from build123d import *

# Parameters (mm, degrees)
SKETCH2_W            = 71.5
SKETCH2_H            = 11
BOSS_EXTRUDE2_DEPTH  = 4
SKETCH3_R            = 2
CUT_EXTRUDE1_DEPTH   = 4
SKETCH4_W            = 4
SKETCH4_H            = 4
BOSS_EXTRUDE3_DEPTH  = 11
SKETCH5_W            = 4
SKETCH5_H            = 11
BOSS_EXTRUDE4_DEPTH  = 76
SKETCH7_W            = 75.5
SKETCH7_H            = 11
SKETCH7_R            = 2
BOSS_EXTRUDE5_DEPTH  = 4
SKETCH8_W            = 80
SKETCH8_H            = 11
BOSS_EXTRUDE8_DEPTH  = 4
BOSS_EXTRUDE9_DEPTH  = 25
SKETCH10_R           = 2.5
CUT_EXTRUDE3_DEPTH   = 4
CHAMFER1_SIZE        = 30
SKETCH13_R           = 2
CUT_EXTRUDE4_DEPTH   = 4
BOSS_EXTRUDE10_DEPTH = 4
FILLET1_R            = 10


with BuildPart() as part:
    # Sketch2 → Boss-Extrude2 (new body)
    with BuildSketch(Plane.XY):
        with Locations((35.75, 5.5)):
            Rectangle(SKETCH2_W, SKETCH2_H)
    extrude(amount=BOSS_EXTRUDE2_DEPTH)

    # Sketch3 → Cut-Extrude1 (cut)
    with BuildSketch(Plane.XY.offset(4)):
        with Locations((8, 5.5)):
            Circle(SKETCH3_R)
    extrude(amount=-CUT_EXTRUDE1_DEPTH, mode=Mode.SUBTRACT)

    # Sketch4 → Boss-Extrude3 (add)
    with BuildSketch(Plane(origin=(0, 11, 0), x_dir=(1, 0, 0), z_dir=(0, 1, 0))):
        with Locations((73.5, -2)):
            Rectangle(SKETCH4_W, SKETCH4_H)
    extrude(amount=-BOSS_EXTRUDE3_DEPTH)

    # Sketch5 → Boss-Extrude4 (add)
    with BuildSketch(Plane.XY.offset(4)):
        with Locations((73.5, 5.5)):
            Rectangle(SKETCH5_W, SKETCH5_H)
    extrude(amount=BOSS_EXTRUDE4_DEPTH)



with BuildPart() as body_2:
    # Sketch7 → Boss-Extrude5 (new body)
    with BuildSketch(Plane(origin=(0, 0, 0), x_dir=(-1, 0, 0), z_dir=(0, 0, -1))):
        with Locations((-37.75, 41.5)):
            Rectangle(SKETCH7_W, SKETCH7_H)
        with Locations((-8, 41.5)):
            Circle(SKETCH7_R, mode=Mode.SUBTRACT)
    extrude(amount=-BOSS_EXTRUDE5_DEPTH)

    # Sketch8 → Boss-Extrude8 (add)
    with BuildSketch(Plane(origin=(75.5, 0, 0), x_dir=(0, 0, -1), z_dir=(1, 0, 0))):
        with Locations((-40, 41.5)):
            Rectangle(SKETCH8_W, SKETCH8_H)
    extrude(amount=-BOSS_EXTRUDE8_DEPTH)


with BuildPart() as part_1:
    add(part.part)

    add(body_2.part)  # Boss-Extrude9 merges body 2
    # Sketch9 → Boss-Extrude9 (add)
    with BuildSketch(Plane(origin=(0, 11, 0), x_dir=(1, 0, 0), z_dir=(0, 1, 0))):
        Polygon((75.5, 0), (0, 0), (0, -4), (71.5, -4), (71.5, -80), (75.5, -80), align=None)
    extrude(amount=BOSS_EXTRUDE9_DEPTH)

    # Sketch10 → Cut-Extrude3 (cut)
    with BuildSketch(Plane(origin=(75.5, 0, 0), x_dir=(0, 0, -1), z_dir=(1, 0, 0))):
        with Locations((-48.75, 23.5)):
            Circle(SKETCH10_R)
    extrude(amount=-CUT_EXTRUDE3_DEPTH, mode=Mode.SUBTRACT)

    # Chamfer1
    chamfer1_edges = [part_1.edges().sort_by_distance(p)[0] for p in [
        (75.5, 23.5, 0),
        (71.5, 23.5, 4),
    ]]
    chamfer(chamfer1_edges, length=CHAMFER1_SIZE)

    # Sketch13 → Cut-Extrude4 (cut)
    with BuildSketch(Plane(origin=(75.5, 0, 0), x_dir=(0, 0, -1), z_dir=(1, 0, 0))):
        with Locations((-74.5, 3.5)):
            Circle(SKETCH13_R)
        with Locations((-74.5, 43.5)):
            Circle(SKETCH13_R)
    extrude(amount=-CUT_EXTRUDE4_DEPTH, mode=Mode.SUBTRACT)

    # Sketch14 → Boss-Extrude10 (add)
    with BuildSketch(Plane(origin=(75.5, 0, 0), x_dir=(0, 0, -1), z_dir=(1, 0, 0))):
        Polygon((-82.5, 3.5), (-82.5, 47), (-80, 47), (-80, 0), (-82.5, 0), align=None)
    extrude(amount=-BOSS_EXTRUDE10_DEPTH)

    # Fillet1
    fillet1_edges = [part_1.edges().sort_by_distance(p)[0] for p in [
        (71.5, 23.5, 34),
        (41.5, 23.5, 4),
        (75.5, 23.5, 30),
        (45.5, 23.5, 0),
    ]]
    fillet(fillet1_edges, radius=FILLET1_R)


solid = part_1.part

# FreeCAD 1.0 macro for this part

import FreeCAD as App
import Part
import Sketcher
Q = App.Units.Quantity


def edges_at(feature, points):
    """Names of the edges that pass closest to the given points."""
    edges = feature.Shape.Edges
    near = lambda p: min(range(len(edges)), key=lambda i: edges[i].distToShape(Part.Vertex(*p))[0])
    return sorted({f"Edge{near(p) + 1}" for p in points})

doc = App.newDocument("Part")
body = doc.addObject("PartDesign::Body", "Body")

# Sketch on XY plane
sketch1 = body.newObject("Sketcher::SketchObject", "Sketch")
sketch1.AttachmentSupport = (doc.getObject("XY_Plane"), [""])
sketch1.MapMode = "FlatFace"
sketch1.addGeometry([
    Part.LineSegment(App.Vector(0, 11, 0), App.Vector(0, 0, 0)),
    Part.LineSegment(App.Vector(0, 0, 0), App.Vector(72, 0, 0)),
    Part.LineSegment(App.Vector(72, 0, 0), App.Vector(72, 11, 0)),
    Part.LineSegment(App.Vector(72, 11, 0), App.Vector(0, 11, 0)),
], False)
sketch1.addConstraint([
    Sketcher.Constraint("Coincident", 0, 2, 1, 1),
    Sketcher.Constraint("Coincident", 1, 2, 2, 1),
    Sketcher.Constraint("Coincident", 2, 2, 3, 1),
    Sketcher.Constraint("Coincident", 3, 2, 0, 1),
    Sketcher.Constraint("Vertical", 0),
    Sketcher.Constraint("Horizontal", 1),
    Sketcher.Constraint("Vertical", 2),
    Sketcher.Constraint("Horizontal", 3),
    Sketcher.Constraint("Coincident", 0, 2, -1, 1),
    Sketcher.Constraint("DistanceY", 0, 2, 0, 1, Q("11 mm")),
    Sketcher.Constraint("DistanceX", 1, 1, 1, 2, Q("71.5 mm")),
])
pad1 = body.newObject("PartDesign::Pad", "Pad")
pad1.Profile = sketch1
pad1.Length = 4

# Sketch on XY plane
sketch2 = body.newObject("Sketcher::SketchObject", "Sketch001")
sketch2.AttachmentSupport = (doc.getObject("XY_Plane"), [""])
sketch2.MapMode = "FlatFace"
sketch2.AttachmentOffset = App.Placement(App.Vector(0, 0, 4), App.Rotation())
sketch2.addGeometry(Part.Circle(App.Vector(8, 5.5, 0), App.Vector(0, 0, 1), 2), False)
sketch2.addConstraint([
    Sketcher.Constraint("Diameter", 0, Q("4 mm")),
    Sketcher.Constraint("DistanceX", -1, 1, 0, 3, Q("8 mm")),
    Sketcher.Constraint("DistanceY", -1, 1, 0, 3, Q("5.5 mm")),
])
pocket1 = body.newObject("PartDesign::Pocket", "Pocket")
pocket1.Profile = sketch2
pocket1.Length = 4

# Sketch on XZ plane
sketch3 = body.newObject("Sketcher::SketchObject", "Sketch002")
sketch3.AttachmentSupport = (doc.getObject("XZ_Plane"), [""])
sketch3.MapMode = "FlatFace"
sketch3.AttachmentOffset = App.Placement(App.Vector(0, 0, -11), App.Rotation())
sketch3.addGeometry([
    Part.LineSegment(App.Vector(71.5, 0, 0), App.Vector(71.5, 4, 0)),
    Part.LineSegment(App.Vector(71.5, 4, 0), App.Vector(75.5, 4, 0)),
    Part.LineSegment(App.Vector(75.5, 4, 0), App.Vector(75.5, 0, 0)),
    Part.LineSegment(App.Vector(75.5, 0, 0), App.Vector(71.5, 0, 0)),
], False)
sketch3.addConstraint([
    Sketcher.Constraint("Coincident", 0, 2, 1, 1),
    Sketcher.Constraint("Coincident", 1, 2, 2, 1),
    Sketcher.Constraint("Coincident", 2, 2, 3, 1),
    Sketcher.Constraint("Coincident", 3, 2, 0, 1),
    Sketcher.Constraint("Vertical", 0),
    Sketcher.Constraint("Horizontal", 1),
    Sketcher.Constraint("Vertical", 2),
    Sketcher.Constraint("Horizontal", 3),
    Sketcher.Constraint("PointOnObject", 2, 2, -1),
    Sketcher.Constraint("Equal", 3, 0),
    Sketcher.Constraint("DistanceX", 1, 1, 1, 2, Q("4 mm")),
    Sketcher.Constraint("DistanceX", -1, 1, 0, 2, Q("71.5 mm")),
])
pad2 = body.newObject("PartDesign::Pad", "Pad001")
pad2.Profile = sketch3
pad2.Length = 11

# Sketch on XY plane
sketch4 = body.newObject("Sketcher::SketchObject", "Sketch003")
sketch4.AttachmentSupport = (doc.getObject("XY_Plane"), [""])
sketch4.MapMode = "FlatFace"
sketch4.AttachmentOffset = App.Placement(App.Vector(0, 0, 4), App.Rotation())
sketch4.addGeometry([
    Part.LineSegment(App.Vector(71.5, 11, 0), App.Vector(71.5, 0, 0)),
    Part.LineSegment(App.Vector(71.5, 0, 0), App.Vector(75.5, 0, 0)),
    Part.LineSegment(App.Vector(75.5, 0, 0), App.Vector(75.5, 11, 0)),
    Part.LineSegment(App.Vector(75.5, 11, 0), App.Vector(71.5, 11, 0)),
], False)
sketch4.addConstraint([
    Sketcher.Constraint("Coincident", 0, 2, 1, 1),
    Sketcher.Constraint("Coincident", 1, 2, 2, 1),
    Sketcher.Constraint("Coincident", 2, 2, 3, 1),
    Sketcher.Constraint("Coincident", 3, 2, 0, 1),
    Sketcher.Constraint("Vertical", 0),
    Sketcher.Constraint("Horizontal", 1),
    Sketcher.Constraint("Vertical", 2),
    Sketcher.Constraint("Horizontal", 3),
    Sketcher.Constraint("PointOnObject", 0, 2, -1),
    Sketcher.Constraint("DistanceX", 1, 1, 1, 2, Q("4 mm")),
    Sketcher.Constraint("DistanceY", 0, 2, 0, 1, Q("11 mm")),
    Sketcher.Constraint("DistanceX", -1, 1, 0, 2, Q("71.5 mm")),
])
pad3 = body.newObject("PartDesign::Pad", "Pad002")
pad3.Profile = sketch4
pad3.Length = 76
body2 = doc.addObject("PartDesign::Body", "Body001")

# Sketch on XY plane
sketch5 = body2.newObject("Sketcher::SketchObject", "Sketch004")
sketch5.AttachmentSupport = (doc.getObject("XY_Plane001"), [""])
sketch5.MapMode = "FlatFace"
sketch5.addGeometry([
    Part.LineSegment(App.Vector(75.5, 47, 0), App.Vector(75.5, 36, 0)),  # 0
    Part.LineSegment(App.Vector(75.5, 36, 0), App.Vector(0, 36, 0)),  # 1
    Part.LineSegment(App.Vector(0, 36, 0), App.Vector(0, 47, 0)),  # 2
    Part.LineSegment(App.Vector(0, 47, 0), App.Vector(75.5, 47, 0)),  # 3
    Part.Circle(App.Vector(8, 41.5, 0), App.Vector(0, 0, 1), 2),  # 4
], False)
sketch5.addConstraint([
    Sketcher.Constraint("Coincident", 0, 2, 1, 1),
    Sketcher.Constraint("Coincident", 1, 2, 2, 1),
    Sketcher.Constraint("Coincident", 2, 2, 3, 1),
    Sketcher.Constraint("Coincident", 3, 2, 0, 1),
    Sketcher.Constraint("Vertical", 0),
    Sketcher.Constraint("Horizontal", 1),
    Sketcher.Constraint("Vertical", 2),
    Sketcher.Constraint("Horizontal", 3),
    Sketcher.Constraint("PointOnObject", 1, 2, -2),
    Sketcher.Constraint("Diameter", 4, Q("4 mm")),
    Sketcher.Constraint("DistanceY", 0, 2, 0, 1, Q("11 mm")),
    Sketcher.Constraint("DistanceX", 1, 2, 1, 1, Q("75.5 mm")),
    Sketcher.Constraint("DistanceX", -1, 1, 4, 3, Q("8 mm")),
    Sketcher.Constraint("DistanceY", -1, 1, 0, 2, Q("36 mm")),
    Sketcher.Constraint("DistanceY", -1, 1, 4, 3, Q("41.5 mm")),
])
pad4 = body2.newObject("PartDesign::Pad", "Pad003")
pad4.Profile = sketch5
pad4.Length = 4

# Sketch on YZ plane
sketch6 = body2.newObject("Sketcher::SketchObject", "Sketch005")
sketch6.AttachmentSupport = (doc.getObject("YZ_Plane001"), [""])
sketch6.MapMode = "FlatFace"
sketch6.AttachmentOffset = App.Placement(App.Vector(0, 0, 75.5), App.Rotation())
sketch6.addGeometry([
    Part.LineSegment(App.Vector(47, 80, 0), App.Vector(36, 80, 0)),
    Part.LineSegment(App.Vector(36, 80, 0), App.Vector(36, 0, 0)),
    Part.LineSegment(App.Vector(36, 0, 0), App.Vector(47, 0, 0)),
    Part.LineSegment(App.Vector(47, 0, 0), App.Vector(47, 80, 0)),
], False)
sketch6.addConstraint([
    Sketcher.Constraint("Coincident", 0, 2, 1, 1),
    Sketcher.Constraint("Coincident", 1, 2, 2, 1),
    Sketcher.Constraint("Coincident", 2, 2, 3, 1),
    Sketcher.Constraint("Coincident", 3, 2, 0, 1),
    Sketcher.Constraint("Horizontal", 0),
    Sketcher.Constraint("Vertical", 1),
    Sketcher.Constraint("Horizontal", 2),
    Sketcher.Constraint("Vertical", 3),
    Sketcher.Constraint("PointOnObject", 1, 2, -1),
    Sketcher.Constraint("DistanceX", 0, 2, 0, 1, Q("11 mm")),
    Sketcher.Constraint("DistanceY", 1, 2, 1, 1, Q("80 mm")),
    Sketcher.Constraint("DistanceX", -1, 1, 0, 2, Q("36 mm")),
])
pad5 = body2.newObject("PartDesign::Pad", "Pad004")
pad5.Profile = sketch6
pad5.Length = 4
pad5.Reversed = True
body.AllowCompound = True
doc.recompute()

boolean = body.newObject("PartDesign::Boolean", "Boolean")
boolean.Type = "Fuse"
boolean.addObjects([body2])

# Sketch on XZ plane
sketch7 = body.newObject("Sketcher::SketchObject", "Sketch006")
sketch7.AttachmentSupport = (doc.getObject("XZ_Plane"), [""])
sketch7.MapMode = "FlatFace"
sketch7.AttachmentOffset = App.Placement(App.Vector(0, 0, -11), App.Rotation())
sketch7.addGeometry([
    Part.LineSegment(App.Vector(75.5, 0, 0), App.Vector(0, 0, 0)),  # 0
    Part.LineSegment(App.Vector(0, 0, 0), App.Vector(0, 4, 0)),  # 1
    Part.LineSegment(App.Vector(0, 4, 0), App.Vector(71.5, 4, 0)),  # 2
    Part.LineSegment(App.Vector(71.5, 4, 0), App.Vector(71.5, 80, 0)),  # 3
    Part.LineSegment(App.Vector(71.5, 80, 0), App.Vector(75.5, 80, 0)),  # 4
    Part.LineSegment(App.Vector(75.5, 80, 0), App.Vector(75.5, 0, 0)),  # 5
], False)
sketch7.addConstraint([
    Sketcher.Constraint("Coincident", 0, 2, 1, 1),
    Sketcher.Constraint("Coincident", 1, 2, 2, 1),
    Sketcher.Constraint("Coincident", 2, 2, 3, 1),
    Sketcher.Constraint("Coincident", 3, 2, 4, 1),
    Sketcher.Constraint("Coincident", 4, 2, 5, 1),
    Sketcher.Constraint("Coincident", 5, 2, 0, 1),
    Sketcher.Constraint("Horizontal", 0),
    Sketcher.Constraint("Vertical", 1),
    Sketcher.Constraint("Horizontal", 2),
    Sketcher.Constraint("Vertical", 3),
    Sketcher.Constraint("Horizontal", 4),
    Sketcher.Constraint("Vertical", 5),
    Sketcher.Constraint("Coincident", 0, 2, -1, 1),
    Sketcher.Constraint("Equal", 4, 1),
    Sketcher.Constraint("DistanceX", 4, 1, 4, 2, Q("4 mm")),
    Sketcher.Constraint("DistanceY", 3, 1, 3, 2, Q("76 mm")),
    Sketcher.Constraint("DistanceX", 0, 2, 0, 1, Q("75.5 mm")),
])
pad6 = body.newObject("PartDesign::Pad", "Pad005")
pad6.Profile = sketch7
pad6.Length = 25
pad6.Reversed = True

# Sketch on YZ plane
sketch8 = body.newObject("Sketcher::SketchObject", "Sketch007")
sketch8.AttachmentSupport = (doc.getObject("YZ_Plane"), [""])
sketch8.MapMode = "FlatFace"
sketch8.AttachmentOffset = App.Placement(App.Vector(0, 0, 75.5), App.Rotation())
sketch8.addGeometry(Part.Circle(App.Vector(23.5, 48.8, 0), App.Vector(0, 0, 1), 2.5), False)
sketch8.addConstraint([
    Sketcher.Constraint("Diameter", 0, Q("5 mm")),
    Sketcher.Constraint("DistanceX", -1, 1, 0, 3, Q("23.5 mm")),
    Sketcher.Constraint("DistanceY", -1, 1, 0, 3, Q("48.75 mm")),
])
pocket2 = body.newObject("PartDesign::Pocket", "Pocket001")
pocket2.Profile = sketch8
pocket2.Length = 4
doc.recompute()

chamfer = body.newObject("PartDesign::Chamfer", "Chamfer")
chamfer.Base = (pocket2, edges_at(pocket2, [(75.5, 23.5, 0), (71.5, 23.5, 4)]))
chamfer.Size = 30

# Sketch on YZ plane
sketch9 = body.newObject("Sketcher::SketchObject", "Sketch008")
sketch9.AttachmentSupport = (doc.getObject("YZ_Plane"), [""])
sketch9.MapMode = "FlatFace"
sketch9.AttachmentOffset = App.Placement(App.Vector(0, 0, 75.5), App.Rotation())
sketch9.addGeometry([
    Part.Circle(App.Vector(3.5, 74.5, 0), App.Vector(0, 0, 1), 2),
    Part.Circle(App.Vector(43.5, 74.5, 0), App.Vector(0, 0, 1), 2),
], False)
sketch9.addConstraint([
    Sketcher.Constraint("Equal", 0, 1),
    Sketcher.Constraint("Horizontal", 0, 3, 1, 3),
    Sketcher.Constraint("Diameter", 0, Q("4 mm")),
    Sketcher.Constraint("DistanceX", 0, 3, 1, 3, Q("40 mm")),
    Sketcher.Constraint("DistanceX", -1, 1, 0, 3, Q("3.5 mm")),
    Sketcher.Constraint("DistanceY", -1, 1, 0, 3, Q("74.5 mm")),
])
pocket3 = body.newObject("PartDesign::Pocket", "Pocket002")
pocket3.Profile = sketch9
pocket3.Length = 4

# Sketch on YZ plane
sketch10 = body.newObject("Sketcher::SketchObject", "Sketch009")
sketch10.AttachmentSupport = (doc.getObject("YZ_Plane"), [""])
sketch10.MapMode = "FlatFace"
sketch10.AttachmentOffset = App.Placement(App.Vector(0, 0, 75.5), App.Rotation())
sketch10.addGeometry([
    Part.LineSegment(App.Vector(47, 82.5, 0), App.Vector(0, 82.5, 0)),
    Part.LineSegment(App.Vector(0, 82.5, 0), App.Vector(0, 80, 0)),
    Part.LineSegment(App.Vector(0, 80, 0), App.Vector(47, 80, 0)),
    Part.LineSegment(App.Vector(47, 80, 0), App.Vector(47, 82.5, 0)),
], False)
sketch10.addConstraint([
    Sketcher.Constraint("Coincident", 0, 2, 1, 1),
    Sketcher.Constraint("Coincident", 1, 2, 2, 1),
    Sketcher.Constraint("Coincident", 2, 2, 3, 1),
    Sketcher.Constraint("Coincident", 3, 2, 0, 1),
    Sketcher.Constraint("Horizontal", 0),
    Sketcher.Constraint("Vertical", 1),
    Sketcher.Constraint("Horizontal", 2),
    Sketcher.Constraint("Vertical", 3),
    Sketcher.Constraint("PointOnObject", 0, 2, -2),
    Sketcher.Constraint("DistanceX", 0, 2, 0, 1, Q("47 mm")),
    Sketcher.Constraint("DistanceY", 1, 2, 1, 1, Q("2.5 mm")),
    Sketcher.Constraint("DistanceY", -1, 1, 1, 2, Q("80 mm")),
])
pad7 = body.newObject("PartDesign::Pad", "Pad006")
pad7.Profile = sketch10
pad7.Length = 4
pad7.Reversed = True
doc.recompute()

fillet = body.newObject("PartDesign::Fillet", "Fillet")
fillet.Base = (pad7, edges_at(pad7, [
    (71.5, 23.5, 34),
    (41.5, 23.5, 4),
    (75.5, 23.5, 30),
    (45.5, 23.5, 0),
]))
fillet.Radius = 10

doc.recompute()
